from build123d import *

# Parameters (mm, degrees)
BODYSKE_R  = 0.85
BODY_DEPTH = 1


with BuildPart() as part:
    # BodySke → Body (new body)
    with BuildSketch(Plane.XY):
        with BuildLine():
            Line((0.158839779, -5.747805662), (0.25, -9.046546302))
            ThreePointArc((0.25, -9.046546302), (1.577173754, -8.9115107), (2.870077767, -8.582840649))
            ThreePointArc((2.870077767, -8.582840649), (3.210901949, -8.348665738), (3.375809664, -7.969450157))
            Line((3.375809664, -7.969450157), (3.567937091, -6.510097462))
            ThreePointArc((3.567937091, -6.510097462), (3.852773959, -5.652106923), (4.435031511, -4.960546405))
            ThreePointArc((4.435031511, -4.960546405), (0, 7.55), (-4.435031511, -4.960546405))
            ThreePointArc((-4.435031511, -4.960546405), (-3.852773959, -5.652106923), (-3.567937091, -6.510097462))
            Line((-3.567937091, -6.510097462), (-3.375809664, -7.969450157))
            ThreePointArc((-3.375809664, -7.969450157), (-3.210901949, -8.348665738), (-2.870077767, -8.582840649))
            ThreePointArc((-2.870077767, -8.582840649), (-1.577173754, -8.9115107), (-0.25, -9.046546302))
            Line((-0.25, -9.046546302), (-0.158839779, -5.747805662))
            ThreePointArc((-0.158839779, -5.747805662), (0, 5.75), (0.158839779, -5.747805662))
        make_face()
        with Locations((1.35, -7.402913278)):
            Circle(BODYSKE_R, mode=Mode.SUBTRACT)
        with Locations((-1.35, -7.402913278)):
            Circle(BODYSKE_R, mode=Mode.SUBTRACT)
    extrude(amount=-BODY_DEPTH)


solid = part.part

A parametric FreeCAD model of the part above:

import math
import FreeCAD as App
import Part
import Sketcher
Q = App.Units.Quantity

doc = App.newDocument("Part")
body = doc.addObject("PartDesign::Body", "Body")

# Sketch on XY plane
sketch1 = body.newObject("Sketcher::SketchObject", "Sketch")
sketch1.AttachmentSupport = (doc.getObject("XY_Plane"), [""])
sketch1.MapMode = "FlatFace"
sketch1.addGeometry(Part.LineSegment(App.Vector(0.15884, -5.747806, 0), App.Vector(0.25, -9.046546, 0)), False)
sketch1.addGeometry(Part.ArcOfCircle(Part.Circle(App.Vector(0, 0, 0), App.Vector(0, 0, 1), 9.05), math.radians(-88.417042), math.radians(-71.51021)), False)
sketch1.addGeometry(Part.ArcOfCircle(Part.Circle(App.Vector(2.632226, -7.871556, 0), App.Vector(0, 0, 1), 0.75), math.radians(-71.51021), math.radians(-7.5)), False)
sketch1.addGeometry(Part.LineSegment(App.Vector(3.37581, -7.96945, 0), App.Vector(3.567937, -6.510097, 0)), False)
sketch1.addGeometry(Part.ArcOfCircle(Part.Circle(App.Vector(5.945405, -6.823097, 0), App.Vector(0, 0, 1), 2.397983), math.radians(129.039182), math.radians(172.5)), False)
sketch1.addGeometry(Part.ArcOfCircle(Part.Circle(App.Vector(0, 0.50861, 0), App.Vector(0, 0, 1), 7.04139), math.radians(-50.960818), math.radians(230.960818)), False)
sketch1.addGeometry(Part.ArcOfCircle(Part.Circle(App.Vector(-5.945405, -6.823097, 0), App.Vector(0, 0, 1), 2.397983), math.radians(7.5), math.radians(50.960818)), False)
sketch1.addGeometry(Part.LineSegment(App.Vector(-3.567937, -6.510097, 0), App.Vector(-3.37581, -7.96945, 0)), False)
sketch1.addGeometry(Part.ArcOfCircle(Part.Circle(App.Vector(-2.632226, -7.871556, 0), App.Vector(0, 0, 1), 0.75), math.radians(-172.5), math.radians(-108.48979)), False)
sketch1.addGeometry(Part.ArcOfCircle(Part.Circle(App.Vector(0, 0, 0), App.Vector(0, 0, 1), 9.05), math.radians(-108.48979), math.radians(-91.582958)), False)
sketch1.addGeometry(Part.LineSegment(App.Vector(-0.25, -9.046546, 0), App.Vector(-0.15884, -5.747806, 0)), False)
sketch1.addGeometry(Part.ArcOfCircle(Part.Circle(App.Vector(0, 0, 0), App.Vector(0, 0, 1), 5.75), math.radians(-88.417042), math.radians(268.417042)), False)
sketch1.addGeometry(Part.Circle(App.Vector(-1.35, -7.402913, 0), App.Vector(0, 0, 1), 0.85), False)
sketch1.addGeometry(Part.Circle(App.Vector(1.35, -7.402913, 0), App.Vector(0, 0, 1), 0.85), False)
sketch1.addConstraint(Sketcher.Constraint("Coincident", 0, 2, 1, 1))
sketch1.addConstraint(Sketcher.Constraint("Tangent", 1, 2, 2, 1))
sketch1.addConstraint(Sketcher.Constraint("Tangent", 2, 2, 3, 1))
sketch1.addConstraint(Sketcher.Constraint("Tangent", 3, 2, 4, 2))
sketch1.addConstraint(Sketcher.Constraint("Tangent", 4, 1, 5, 1))
sketch1.addConstraint(Sketcher.Constraint("Tangent", 5, 2, 6, 2))
sketch1.addConstraint(Sketcher.Constraint("Tangent", 6, 1, 7, 1))
sketch1.addConstraint(Sketcher.Constraint("Tangent", 7, 2, 8, 1))
sketch1.addConstraint(Sketcher.Constraint("Tangent", 8, 2, 9, 1))
sketch1.addConstraint(Sketcher.Constraint("Coincident", 9, 2, 10, 1))
sketch1.addConstraint(Sketcher.Constraint("Coincident", 10, 2, 11, 2))
sketch1.addConstraint(Sketcher.Constraint("Coincident", 11, 1, 0, 1))
sketch1.addConstraint(Sketcher.Constraint("Coincident", 1, 3, -1, 1))
sketch1.addConstraint(Sketcher.Constraint("Coincident", 9, 3, -1, 1))
sketch1.addConstraint(Sketcher.Constraint("Coincident", 11, 3, -1, 1))
sketch1.addConstraint(Sketcher.Constraint("Equal", 4, 6))
sketch1.addConstraint(Sketcher.Constraint("Equal", 2, 8))
sketch1.addConstraint(Sketcher.Constraint("Equal", 1, 9))
sketch1.addConstraint(Sketcher.Constraint("Equal", 12, 13))
sketch1.addConstraint(Sketcher.Constraint("Symmetric", 4, 3, 6, 3, -2))
sketch1.addConstraint(Sketcher.Constraint("Symmetric", 12, 3, 13, 3, -2))
sketch1.addConstraint(Sketcher.Constraint("Horizontal", 2, 3, 8, 3))
sketch1.addConstraint(Sketcher.Constraint("Horizontal", 0, 2, 9, 2))
sketch1.addConstraint(Sketcher.Constraint("Horizontal", 10, 2, 11, 1))
sketch1.addConstraint(Sketcher.Constraint("Diameter", 12, Q("1.7 mm")))
sketch1.addConstraint(Sketcher.Constraint("Radius", 1, Q("9.05 mm")))
sketch1.addConstraint(Sketcher.Constraint("Radius", 2, Q("0.75 mm")))
sketch1.addConstraint(Sketcher.Constraint("Radius", 11, Q("5.75 mm")))
sketch1.addConstraint(Sketcher.Constraint("Angle", 3, Q("82.5 deg")))
sketch1.addConstraint(Sketcher.Constraint("DistanceX", 12, 3, 13, 3, Q("2.7 mm")))
sketch1.addConstraint(Sketcher.Constraint("DistanceX", 0, 2, 13, 3, Q("1.1 mm")))
sketch1.addConstraint(Sketcher.Constraint("Radius", 5, Q("7.04139 mm")))
sketch1.addConstraint(Sketcher.Constraint("Radius", 4, Q("2.397983 mm")))
sketch1.addConstraint(Sketcher.Constraint("DistanceY", 0, 2, 5, 2, Q("4.086 mm")))
sketch1.addConstraint(Sketcher.Constraint("DistanceY", -1, 1, 5, 3, Q("0.50861 mm")))
sketch1.addConstraint(Sketcher.Constraint("DistanceX", 10, 2, -1, 1, Q("0.15884 mm")))
sketch1.addConstraint(Sketcher.Constraint("DistanceY", 12, 3, -1, 1, Q("7.402913 mm")))
pad1 = body.newObject("PartDesign::Pad", "Pad")
pad1.Profile = sketch1
pad1.Length = 1
pad1.Reversed = True

doc.recompute()
